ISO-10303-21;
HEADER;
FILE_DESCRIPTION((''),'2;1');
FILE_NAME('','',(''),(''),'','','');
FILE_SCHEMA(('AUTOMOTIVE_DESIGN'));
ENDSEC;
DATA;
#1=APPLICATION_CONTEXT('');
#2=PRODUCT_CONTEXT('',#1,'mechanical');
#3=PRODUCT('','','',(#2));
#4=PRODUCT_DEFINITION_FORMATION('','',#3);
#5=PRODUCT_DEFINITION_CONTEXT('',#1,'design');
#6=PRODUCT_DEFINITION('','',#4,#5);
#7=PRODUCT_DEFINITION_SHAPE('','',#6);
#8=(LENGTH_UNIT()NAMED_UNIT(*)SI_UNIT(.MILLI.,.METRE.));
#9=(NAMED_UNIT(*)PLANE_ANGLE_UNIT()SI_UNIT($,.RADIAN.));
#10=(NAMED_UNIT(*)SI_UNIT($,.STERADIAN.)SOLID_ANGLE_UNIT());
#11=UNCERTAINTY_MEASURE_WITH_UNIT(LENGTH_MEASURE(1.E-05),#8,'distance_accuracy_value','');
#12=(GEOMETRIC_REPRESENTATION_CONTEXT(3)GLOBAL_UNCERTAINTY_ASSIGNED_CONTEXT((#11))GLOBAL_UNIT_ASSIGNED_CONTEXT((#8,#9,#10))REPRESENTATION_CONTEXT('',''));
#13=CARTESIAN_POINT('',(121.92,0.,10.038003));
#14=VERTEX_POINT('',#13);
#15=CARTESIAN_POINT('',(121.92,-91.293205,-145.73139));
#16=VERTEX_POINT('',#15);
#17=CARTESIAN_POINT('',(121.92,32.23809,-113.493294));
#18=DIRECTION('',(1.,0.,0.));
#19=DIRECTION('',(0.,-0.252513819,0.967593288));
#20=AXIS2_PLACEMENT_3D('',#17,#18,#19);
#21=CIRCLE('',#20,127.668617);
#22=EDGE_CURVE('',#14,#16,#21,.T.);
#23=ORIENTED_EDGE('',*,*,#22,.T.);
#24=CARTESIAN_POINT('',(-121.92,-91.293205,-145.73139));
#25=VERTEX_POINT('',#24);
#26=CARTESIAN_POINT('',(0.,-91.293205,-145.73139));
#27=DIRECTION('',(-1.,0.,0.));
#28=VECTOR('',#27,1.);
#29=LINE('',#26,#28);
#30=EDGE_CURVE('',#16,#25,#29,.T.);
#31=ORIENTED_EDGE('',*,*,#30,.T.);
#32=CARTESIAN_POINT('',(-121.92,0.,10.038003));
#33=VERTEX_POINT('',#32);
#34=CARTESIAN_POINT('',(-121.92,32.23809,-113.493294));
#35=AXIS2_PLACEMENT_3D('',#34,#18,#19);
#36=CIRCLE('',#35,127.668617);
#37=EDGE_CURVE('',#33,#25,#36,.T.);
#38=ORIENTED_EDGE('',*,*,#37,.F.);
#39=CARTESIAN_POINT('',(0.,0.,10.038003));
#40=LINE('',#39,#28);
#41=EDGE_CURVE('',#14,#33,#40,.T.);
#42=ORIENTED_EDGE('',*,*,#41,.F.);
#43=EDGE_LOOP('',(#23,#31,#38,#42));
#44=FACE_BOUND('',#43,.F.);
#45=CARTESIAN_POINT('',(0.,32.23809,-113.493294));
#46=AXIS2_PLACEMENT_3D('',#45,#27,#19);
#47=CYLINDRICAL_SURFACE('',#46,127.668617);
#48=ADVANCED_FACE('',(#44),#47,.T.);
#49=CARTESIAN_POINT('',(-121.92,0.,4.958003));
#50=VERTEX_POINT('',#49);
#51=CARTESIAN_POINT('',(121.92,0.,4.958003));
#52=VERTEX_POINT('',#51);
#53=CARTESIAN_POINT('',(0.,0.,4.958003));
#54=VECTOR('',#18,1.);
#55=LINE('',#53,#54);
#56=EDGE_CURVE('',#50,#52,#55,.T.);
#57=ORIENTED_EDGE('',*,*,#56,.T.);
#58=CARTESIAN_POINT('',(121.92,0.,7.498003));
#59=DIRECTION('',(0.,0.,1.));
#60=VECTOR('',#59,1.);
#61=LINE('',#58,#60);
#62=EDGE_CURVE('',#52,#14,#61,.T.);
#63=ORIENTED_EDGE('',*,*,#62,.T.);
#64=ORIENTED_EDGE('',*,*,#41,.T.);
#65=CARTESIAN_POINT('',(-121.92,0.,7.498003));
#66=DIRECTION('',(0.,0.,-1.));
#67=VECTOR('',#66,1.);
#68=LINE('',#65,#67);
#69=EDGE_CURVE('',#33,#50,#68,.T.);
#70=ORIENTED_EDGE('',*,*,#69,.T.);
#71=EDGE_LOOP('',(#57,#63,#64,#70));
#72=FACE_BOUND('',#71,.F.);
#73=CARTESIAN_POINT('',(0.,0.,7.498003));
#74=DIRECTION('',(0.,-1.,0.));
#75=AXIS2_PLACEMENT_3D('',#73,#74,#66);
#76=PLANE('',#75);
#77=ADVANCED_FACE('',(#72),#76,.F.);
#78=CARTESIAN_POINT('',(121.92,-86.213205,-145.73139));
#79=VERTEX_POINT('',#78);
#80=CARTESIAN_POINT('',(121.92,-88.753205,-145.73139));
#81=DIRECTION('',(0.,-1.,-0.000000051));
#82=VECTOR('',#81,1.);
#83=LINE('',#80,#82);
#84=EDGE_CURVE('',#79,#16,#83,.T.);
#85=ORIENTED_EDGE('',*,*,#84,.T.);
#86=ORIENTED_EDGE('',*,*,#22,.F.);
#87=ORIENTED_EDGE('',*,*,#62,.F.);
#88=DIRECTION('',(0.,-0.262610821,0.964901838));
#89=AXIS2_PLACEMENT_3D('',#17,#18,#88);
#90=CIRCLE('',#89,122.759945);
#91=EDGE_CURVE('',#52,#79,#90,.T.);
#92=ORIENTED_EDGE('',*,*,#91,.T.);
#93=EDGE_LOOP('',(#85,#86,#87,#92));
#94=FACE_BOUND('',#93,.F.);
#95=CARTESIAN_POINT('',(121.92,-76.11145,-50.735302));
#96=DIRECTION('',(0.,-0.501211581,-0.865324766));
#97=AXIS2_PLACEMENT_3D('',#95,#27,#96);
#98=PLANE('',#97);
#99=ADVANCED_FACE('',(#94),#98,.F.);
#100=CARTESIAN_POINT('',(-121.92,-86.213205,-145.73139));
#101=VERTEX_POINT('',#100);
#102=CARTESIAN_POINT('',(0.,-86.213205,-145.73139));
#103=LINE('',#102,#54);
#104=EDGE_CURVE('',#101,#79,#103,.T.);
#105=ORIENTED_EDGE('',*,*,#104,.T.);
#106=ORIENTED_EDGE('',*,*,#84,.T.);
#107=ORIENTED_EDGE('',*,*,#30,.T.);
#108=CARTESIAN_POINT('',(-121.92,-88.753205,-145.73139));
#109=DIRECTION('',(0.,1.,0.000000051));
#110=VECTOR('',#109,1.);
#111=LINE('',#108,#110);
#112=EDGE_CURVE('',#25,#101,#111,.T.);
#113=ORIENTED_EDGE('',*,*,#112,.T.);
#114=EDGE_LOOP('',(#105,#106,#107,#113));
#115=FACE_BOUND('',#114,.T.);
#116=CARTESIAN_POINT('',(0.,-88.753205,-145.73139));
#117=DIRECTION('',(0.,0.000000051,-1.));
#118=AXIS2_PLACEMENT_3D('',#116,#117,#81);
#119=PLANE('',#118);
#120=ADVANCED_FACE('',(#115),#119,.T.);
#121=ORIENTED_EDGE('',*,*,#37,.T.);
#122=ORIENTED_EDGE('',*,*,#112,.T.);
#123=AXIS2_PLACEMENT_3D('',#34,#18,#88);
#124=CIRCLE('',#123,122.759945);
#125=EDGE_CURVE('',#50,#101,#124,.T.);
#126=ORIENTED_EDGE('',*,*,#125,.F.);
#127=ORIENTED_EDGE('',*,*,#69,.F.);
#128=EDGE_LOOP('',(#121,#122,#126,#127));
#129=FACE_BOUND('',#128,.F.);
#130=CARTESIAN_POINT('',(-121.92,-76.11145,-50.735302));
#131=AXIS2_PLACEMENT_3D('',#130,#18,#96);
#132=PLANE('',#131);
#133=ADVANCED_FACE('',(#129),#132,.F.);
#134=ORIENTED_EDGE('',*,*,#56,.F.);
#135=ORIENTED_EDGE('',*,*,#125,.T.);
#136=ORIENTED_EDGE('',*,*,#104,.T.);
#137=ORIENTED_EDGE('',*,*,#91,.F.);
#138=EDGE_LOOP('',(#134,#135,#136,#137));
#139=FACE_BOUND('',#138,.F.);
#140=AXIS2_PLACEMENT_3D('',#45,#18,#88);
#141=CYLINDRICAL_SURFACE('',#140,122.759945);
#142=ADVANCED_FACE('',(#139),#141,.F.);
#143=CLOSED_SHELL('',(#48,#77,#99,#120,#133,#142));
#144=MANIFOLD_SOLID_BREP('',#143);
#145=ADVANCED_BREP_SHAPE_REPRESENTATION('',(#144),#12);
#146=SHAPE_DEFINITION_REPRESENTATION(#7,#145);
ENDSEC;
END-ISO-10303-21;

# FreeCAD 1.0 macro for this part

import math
import FreeCAD as App
import Part
import Sketcher
from FreeCAD import Vector
Q = App.Units.Quantity

doc = App.newDocument("Part")
body = doc.addObject("PartDesign::Body", "Body")

# Sketch on XZ plane
sketch1 = body.newObject("Sketcher::SketchObject", "Sketch")
sketch1.AttachmentSupport = (doc.getObject("XZ_Plane"), [""])
sketch1.MapMode = "FlatFace"
sketch1.addGeometry([
    Part.LineSegment(Vector(-121.92, 10.038003, 0), Vector(-121.92, 4.958003, 0)),
    Part.LineSegment(Vector(-121.92, 4.958003, 0), Vector(121.92, 4.958003, 0)),
    Part.LineSegment(Vector(121.92, 4.958003, 0), Vector(121.92, 10.038003, 0)),
    Part.LineSegment(Vector(121.92, 10.038003, 0), Vector(-121.92, 10.038003, 0)),
], False)
sketch1.addConstraint([
    Sketcher.Constraint("Coincident", 0, 2, 1, 1),
    Sketcher.Constraint("Coincident", 1, 2, 2, 1),
    Sketcher.Constraint("Coincident", 2, 2, 3, 1),
    Sketcher.Constraint("Coincident", 3, 2, 0, 1),
    Sketcher.Constraint("Vertical", 0),
    Sketcher.Constraint("Horizontal", 1),
    Sketcher.Constraint("Vertical", 2),
    Sketcher.Constraint("Horizontal", 3),
    Sketcher.Constraint("DistanceX", 1, 1, 1, 2, Q("9.6 in")),
    Sketcher.Constraint("DistanceY", 0, 2, 0, 1, Q("0.2 in")),
    Sketcher.Constraint("DistanceX", 0, 2, -1, 1, Q("4.8 in")),
    Sketcher.Constraint("DistanceY", -1, 1, 0, 2, 4.958003),
])

# Sketch on YZ plane
sketch2 = body.newObject("Sketcher::SketchObject", "Sketch001")
sketch2.AttachmentSupport = (doc.getObject("YZ_Plane"), [""])
sketch2.MapMode = "FlatFace"
sketch2.addGeometry(Part.ArcOfCircle(Part.Circle(Vector(32.23809, -113.493294, 0), Vector(0, 0, 1), 127), math.radians(104.705052), math.radians(194.705055)), False)
sketch2.addConstraint([
    Sketcher.Constraint("PointOnObject", 0, 1, -2),
    Sketcher.Constraint("Radius", 0, Q("5 in")),
    Sketcher.Constraint("DistanceX", -1, 1, 0, 3, 32.23809),
    Sketcher.Constraint("DistanceY", -1, 1, 0, 1, 9.346869),
    Sketcher.Constraint("DistanceX", 0, 2, -1, 1, 90.602071),
])
doc.recompute()

additivepipe = body.newObject("PartDesign::AdditivePipe", "AdditivePipe")
additivepipe.Profile = sketch1
additivepipe.Spine = (sketch2, ["Edge1"])

doc.recompute()
